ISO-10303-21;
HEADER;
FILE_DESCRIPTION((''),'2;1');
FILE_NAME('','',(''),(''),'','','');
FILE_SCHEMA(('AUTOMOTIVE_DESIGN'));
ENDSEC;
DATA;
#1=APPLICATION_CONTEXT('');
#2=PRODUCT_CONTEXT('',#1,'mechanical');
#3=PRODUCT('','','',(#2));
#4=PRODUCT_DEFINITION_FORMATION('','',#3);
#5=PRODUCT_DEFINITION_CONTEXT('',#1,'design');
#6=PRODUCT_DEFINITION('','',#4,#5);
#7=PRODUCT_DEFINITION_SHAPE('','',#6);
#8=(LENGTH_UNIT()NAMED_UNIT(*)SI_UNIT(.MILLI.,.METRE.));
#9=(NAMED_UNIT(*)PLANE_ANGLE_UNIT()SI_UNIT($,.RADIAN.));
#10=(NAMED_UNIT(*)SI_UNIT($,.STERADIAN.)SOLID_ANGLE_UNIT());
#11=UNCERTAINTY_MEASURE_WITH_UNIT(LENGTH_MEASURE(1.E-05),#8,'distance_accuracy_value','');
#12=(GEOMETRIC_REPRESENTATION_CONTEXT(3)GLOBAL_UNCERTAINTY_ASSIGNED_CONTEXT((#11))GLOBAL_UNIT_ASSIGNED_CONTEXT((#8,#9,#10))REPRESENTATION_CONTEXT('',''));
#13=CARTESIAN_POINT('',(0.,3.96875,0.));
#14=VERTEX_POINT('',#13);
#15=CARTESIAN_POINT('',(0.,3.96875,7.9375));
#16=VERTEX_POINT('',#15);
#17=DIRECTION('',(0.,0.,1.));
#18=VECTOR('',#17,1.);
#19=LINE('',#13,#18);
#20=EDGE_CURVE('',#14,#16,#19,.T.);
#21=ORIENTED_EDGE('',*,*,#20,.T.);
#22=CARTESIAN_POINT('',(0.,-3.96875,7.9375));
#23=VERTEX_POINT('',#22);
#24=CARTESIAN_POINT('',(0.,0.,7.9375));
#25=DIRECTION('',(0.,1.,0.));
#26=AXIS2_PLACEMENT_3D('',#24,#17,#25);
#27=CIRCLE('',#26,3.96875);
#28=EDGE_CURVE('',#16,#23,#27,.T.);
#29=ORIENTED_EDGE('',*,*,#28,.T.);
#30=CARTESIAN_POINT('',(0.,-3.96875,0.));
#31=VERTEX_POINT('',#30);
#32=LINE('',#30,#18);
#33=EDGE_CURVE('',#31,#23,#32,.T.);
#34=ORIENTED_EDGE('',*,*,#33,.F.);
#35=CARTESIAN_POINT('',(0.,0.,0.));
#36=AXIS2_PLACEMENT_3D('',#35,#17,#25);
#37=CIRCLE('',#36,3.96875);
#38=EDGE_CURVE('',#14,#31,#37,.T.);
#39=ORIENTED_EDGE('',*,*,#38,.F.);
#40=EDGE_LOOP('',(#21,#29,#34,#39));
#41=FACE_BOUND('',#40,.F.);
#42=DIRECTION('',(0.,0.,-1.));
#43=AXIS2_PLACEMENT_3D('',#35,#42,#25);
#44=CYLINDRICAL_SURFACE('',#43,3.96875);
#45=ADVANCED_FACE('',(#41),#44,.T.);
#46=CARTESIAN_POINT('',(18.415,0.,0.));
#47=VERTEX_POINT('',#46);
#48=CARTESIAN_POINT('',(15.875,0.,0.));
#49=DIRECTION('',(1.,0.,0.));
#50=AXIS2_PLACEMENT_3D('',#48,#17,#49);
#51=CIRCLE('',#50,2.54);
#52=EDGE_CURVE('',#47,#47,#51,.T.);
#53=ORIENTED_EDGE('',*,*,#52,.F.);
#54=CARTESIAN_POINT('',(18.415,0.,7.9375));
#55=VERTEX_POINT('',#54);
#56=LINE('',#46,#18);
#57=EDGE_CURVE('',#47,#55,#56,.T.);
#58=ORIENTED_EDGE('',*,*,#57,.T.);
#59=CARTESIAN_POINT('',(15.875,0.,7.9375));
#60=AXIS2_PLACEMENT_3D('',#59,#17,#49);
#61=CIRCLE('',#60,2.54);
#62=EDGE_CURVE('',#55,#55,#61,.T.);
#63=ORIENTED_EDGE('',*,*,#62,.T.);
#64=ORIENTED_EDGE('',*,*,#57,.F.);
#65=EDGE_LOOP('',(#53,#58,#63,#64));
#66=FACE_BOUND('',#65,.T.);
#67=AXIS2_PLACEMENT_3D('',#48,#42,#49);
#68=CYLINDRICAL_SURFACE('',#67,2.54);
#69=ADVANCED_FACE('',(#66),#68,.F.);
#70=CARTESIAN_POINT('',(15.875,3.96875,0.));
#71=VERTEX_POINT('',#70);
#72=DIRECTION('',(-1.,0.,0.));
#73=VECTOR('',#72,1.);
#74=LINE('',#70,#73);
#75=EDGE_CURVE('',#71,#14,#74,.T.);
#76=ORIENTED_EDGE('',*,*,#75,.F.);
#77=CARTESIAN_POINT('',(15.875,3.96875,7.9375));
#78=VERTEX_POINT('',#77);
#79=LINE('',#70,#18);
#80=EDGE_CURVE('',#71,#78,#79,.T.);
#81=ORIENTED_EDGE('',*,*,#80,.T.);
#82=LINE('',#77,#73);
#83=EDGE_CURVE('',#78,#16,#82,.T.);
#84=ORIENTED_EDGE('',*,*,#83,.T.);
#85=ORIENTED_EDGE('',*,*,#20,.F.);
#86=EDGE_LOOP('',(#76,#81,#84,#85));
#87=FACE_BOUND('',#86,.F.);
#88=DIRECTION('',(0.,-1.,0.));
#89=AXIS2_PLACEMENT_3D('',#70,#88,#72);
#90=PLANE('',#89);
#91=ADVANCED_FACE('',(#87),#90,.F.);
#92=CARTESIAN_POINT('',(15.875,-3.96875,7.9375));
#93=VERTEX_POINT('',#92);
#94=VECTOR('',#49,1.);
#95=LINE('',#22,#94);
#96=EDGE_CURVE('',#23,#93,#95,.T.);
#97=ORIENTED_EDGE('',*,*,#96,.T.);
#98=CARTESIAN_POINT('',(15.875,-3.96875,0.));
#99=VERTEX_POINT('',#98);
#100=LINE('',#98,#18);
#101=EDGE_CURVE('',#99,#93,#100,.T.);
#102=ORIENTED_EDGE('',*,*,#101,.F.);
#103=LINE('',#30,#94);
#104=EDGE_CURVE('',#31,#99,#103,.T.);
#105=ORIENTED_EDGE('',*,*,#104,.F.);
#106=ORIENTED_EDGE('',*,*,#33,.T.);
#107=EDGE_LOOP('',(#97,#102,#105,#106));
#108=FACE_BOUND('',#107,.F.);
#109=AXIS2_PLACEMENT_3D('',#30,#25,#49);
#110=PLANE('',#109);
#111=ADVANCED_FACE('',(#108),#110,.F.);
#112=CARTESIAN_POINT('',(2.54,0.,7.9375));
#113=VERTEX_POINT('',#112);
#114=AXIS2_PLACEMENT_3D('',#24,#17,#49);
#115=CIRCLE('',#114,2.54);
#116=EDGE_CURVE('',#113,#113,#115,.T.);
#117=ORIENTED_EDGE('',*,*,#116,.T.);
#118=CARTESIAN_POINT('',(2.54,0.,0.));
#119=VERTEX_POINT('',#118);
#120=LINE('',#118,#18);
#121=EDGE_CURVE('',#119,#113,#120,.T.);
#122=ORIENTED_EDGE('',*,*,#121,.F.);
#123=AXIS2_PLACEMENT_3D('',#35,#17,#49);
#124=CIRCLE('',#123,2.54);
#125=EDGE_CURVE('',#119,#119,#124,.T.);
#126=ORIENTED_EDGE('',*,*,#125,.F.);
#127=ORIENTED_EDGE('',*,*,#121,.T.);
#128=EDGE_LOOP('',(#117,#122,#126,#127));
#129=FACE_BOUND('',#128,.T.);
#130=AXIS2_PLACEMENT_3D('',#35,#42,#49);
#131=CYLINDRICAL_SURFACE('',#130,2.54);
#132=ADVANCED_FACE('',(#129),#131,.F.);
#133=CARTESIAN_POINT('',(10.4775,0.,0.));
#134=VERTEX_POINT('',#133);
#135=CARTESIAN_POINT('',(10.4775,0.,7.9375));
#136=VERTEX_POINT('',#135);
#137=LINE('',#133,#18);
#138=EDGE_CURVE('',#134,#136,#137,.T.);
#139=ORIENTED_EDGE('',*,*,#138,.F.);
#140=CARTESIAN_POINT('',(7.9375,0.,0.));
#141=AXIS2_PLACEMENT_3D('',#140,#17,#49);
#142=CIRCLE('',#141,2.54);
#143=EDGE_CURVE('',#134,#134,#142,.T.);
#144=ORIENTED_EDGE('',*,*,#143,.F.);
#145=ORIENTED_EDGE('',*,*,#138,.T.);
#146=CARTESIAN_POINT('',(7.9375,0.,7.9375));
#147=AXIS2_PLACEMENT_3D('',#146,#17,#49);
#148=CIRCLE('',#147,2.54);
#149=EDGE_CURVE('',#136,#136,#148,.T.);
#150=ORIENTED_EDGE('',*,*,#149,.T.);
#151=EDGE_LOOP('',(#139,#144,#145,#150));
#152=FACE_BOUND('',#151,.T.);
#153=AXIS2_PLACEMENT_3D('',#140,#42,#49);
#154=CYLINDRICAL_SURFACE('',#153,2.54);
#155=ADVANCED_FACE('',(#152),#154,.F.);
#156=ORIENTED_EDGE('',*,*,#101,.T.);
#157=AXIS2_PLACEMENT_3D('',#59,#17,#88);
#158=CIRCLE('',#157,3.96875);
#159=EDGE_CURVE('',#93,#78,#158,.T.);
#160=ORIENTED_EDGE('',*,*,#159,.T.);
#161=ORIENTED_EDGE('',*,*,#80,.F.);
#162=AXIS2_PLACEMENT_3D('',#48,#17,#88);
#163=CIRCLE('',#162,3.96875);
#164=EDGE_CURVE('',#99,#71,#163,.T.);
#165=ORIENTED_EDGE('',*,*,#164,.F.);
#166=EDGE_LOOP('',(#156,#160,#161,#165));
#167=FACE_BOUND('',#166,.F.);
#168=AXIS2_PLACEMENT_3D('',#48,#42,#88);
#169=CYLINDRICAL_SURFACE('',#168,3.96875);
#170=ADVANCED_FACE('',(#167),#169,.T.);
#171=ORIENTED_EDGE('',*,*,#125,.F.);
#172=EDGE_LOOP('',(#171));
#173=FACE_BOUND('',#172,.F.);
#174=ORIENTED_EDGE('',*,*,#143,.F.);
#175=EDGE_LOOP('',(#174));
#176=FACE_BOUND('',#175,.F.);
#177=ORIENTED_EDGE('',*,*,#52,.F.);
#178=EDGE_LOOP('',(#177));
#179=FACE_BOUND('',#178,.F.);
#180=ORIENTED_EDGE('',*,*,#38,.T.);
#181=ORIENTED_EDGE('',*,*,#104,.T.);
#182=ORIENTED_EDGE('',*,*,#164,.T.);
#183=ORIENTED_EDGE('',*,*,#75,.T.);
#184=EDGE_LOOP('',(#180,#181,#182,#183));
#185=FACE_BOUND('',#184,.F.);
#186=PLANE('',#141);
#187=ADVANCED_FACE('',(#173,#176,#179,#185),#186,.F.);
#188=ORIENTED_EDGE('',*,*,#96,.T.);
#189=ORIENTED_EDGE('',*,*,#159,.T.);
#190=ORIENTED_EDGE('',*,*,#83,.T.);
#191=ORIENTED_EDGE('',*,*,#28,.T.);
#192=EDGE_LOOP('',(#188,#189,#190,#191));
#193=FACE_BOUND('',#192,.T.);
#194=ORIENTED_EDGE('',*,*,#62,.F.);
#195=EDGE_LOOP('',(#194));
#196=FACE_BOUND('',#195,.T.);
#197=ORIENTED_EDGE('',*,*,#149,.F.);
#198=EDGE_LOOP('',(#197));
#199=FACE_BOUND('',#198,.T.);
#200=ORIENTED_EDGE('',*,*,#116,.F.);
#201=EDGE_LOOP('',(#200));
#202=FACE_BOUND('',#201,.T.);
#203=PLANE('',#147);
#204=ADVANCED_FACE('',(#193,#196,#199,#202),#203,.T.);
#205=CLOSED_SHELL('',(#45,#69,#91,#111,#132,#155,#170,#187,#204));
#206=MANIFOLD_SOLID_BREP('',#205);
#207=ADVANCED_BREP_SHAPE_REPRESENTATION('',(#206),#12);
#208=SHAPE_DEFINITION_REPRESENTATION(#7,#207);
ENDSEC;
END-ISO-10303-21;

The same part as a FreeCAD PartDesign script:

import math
import FreeCAD as App
import Part
import Sketcher
Q = App.Units.Quantity

doc = App.newDocument("Part")
body = doc.addObject("PartDesign::Body", "Body")

# Sketch on XY plane
sketch1 = body.newObject("Sketcher::SketchObject", "Sketch")
sketch1.AttachmentSupport = (doc.getObject("XY_Plane"), [""])
sketch1.MapMode = "FlatFace"
sketch1.addGeometry([
    Part.LineSegment(App.Vector(15.9, 4, 0), App.Vector(0, 4, 0)),  # 0
    Part.ArcOfCircle(Part.Circle(App.Vector(0, 0, 0), App.Vector(0, 0, 1), 4), math.radians(90), math.radians(270)),  # 1
    Part.LineSegment(App.Vector(0, -4, 0), App.Vector(15.9, -4, 0)),  # 2
    Part.ArcOfCircle(Part.Circle(App.Vector(15.9, 0, 0), App.Vector(0, 0, 1), 4), math.radians(-90), math.radians(90)),  # 3
    Part.Circle(App.Vector(0, 0, 0), App.Vector(0, 0, 1), 2.5),  # 4
    Part.Circle(App.Vector(7.9, 0, 0), App.Vector(0, 0, 1), 2.5),  # 5
    Part.Circle(App.Vector(15.9, 0, 0), App.Vector(0, 0, 1), 2.5),  # 6
], False)
sketch1.addConstraint([
    Sketcher.Constraint("Tangent", 0, 2, 1, 1),
    Sketcher.Constraint("Tangent", 1, 2, 2, 1),
    Sketcher.Constraint("Tangent", 2, 2, 3, 1),
    Sketcher.Constraint("Tangent", 3, 2, 0, 1),
    Sketcher.Constraint("Horizontal", 0),
    Sketcher.Constraint("Horizontal", 2),
    Sketcher.Constraint("Coincident", 1, 3, -1, 1),
    Sketcher.Constraint("Coincident", 4, 3, -1, 1),
    Sketcher.Constraint("Coincident", 6, 3, 3, 3),
    Sketcher.Constraint("Equal", 4, 5),
    Sketcher.Constraint("Equal", 5, 6),
    Sketcher.Constraint("PointOnObject", 5, 3, -1),
    Sketcher.Constraint("Diameter", 4, Q("0.2 in")),
    Sketcher.Constraint("Radius", 1, Q("0.15625 in")),
    Sketcher.Constraint("DistanceX", 0, 2, 0, 1, Q("0.625 in")),
    Sketcher.Constraint("DistanceX", -1, 1, 5, 3, Q("0.3125 in")),
])
pad1 = body.newObject("PartDesign::Pad", "Pad")
pad1.Profile = sketch1
pad1.Length = Q("0.3125 in")

doc.recompute()
